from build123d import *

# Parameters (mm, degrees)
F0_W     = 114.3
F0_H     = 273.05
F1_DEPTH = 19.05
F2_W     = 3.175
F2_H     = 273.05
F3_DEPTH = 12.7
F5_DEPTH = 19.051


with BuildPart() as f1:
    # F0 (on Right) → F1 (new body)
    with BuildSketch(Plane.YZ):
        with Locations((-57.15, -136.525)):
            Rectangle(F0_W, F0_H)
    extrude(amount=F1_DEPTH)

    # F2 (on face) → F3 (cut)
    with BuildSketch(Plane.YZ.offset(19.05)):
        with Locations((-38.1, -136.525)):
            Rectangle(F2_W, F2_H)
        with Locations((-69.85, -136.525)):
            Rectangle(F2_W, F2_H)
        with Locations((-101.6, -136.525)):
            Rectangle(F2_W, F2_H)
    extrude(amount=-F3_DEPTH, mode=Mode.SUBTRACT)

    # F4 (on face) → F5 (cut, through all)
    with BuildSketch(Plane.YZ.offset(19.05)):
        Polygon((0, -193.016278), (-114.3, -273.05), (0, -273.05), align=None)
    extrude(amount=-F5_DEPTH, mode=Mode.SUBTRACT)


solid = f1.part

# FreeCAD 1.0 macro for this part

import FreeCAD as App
import Part
import Sketcher
from FreeCAD import Vector
Q = App.Units.Quantity


def add_polygon(sketch, points):
    """Adds a closed chain of lines whose ends are joined by coincident constraints."""
    first, n = sketch.GeometryCount, len(points)
    for a, b in zip(points, points[1:] + points[:1]):
        sketch.addGeometry(Part.LineSegment(App.Vector(*a, 0), App.Vector(*b, 0)), False)
    for i in range(n):
        sketch.addConstraint(Sketcher.Constraint("Coincident", first + i, 2, first + (i + 1) % n, 1))

doc = App.newDocument("Part")
body = doc.addObject("PartDesign::Body", "Body")

# Sketch on YZ plane
sketch1 = doc.addObject("Sketcher::SketchObject", "Sketch")
body.addObject(sketch1)
sketch1.AttachmentSupport = (doc.YZ_Plane, [""])
sketch1.MapMode = "FlatFace"
add_polygon(sketch1, [(-114.3, 0), (-114.3, -273.05), (0, -273.05), (0, 0)])  # lines 0-3
sketch1.addConstraint([
    Sketcher.Constraint("Vertical", 0),
    Sketcher.Constraint("Horizontal", 1),
    Sketcher.Constraint("Vertical", 2),
    Sketcher.Constraint("Horizontal", 3),
    Sketcher.Constraint("Coincident", 2, 2, -1, 1),
    Sketcher.Constraint("DistanceX", 1, 1, 1, 2, Q("4.5 in")),
    Sketcher.Constraint("DistanceY", 0, 2, 0, 1, Q("10.75 in")),
])
pad1 = doc.addObject("PartDesign::Pad", "Pad")
body.addObject(pad1)
pad1.Profile = sketch1
pad1.Length = Q("0.75 in")

# Sketch on YZ plane
sketch2 = doc.addObject("Sketcher::SketchObject", "Sketch001")
body.addObject(sketch2)
sketch2.AttachmentSupport = (doc.YZ_Plane, [""])
sketch2.MapMode = "FlatFace"
sketch2.AttachmentOffset = App.Placement(Vector(0, 0, 0.75 * 25.4), App.Rotation())
add_polygon(sketch2, [(-39.6875, 0), (-39.6875, -273.05), (-36.5125, -273.05), (-36.5125, 0)])  # lines 0-3
add_polygon(sketch2, [(-71.4375, 0), (-71.4375, -273.05), (-68.2625, -273.05), (-68.2625, 0)])  # lines 4-7
add_polygon(sketch2, [(-103.1875, 0), (-103.1875, -273.05), (-100.0125, -273.05), (-100.0125, 0)])  # lines 8-11
sketch2.addConstraint([
    Sketcher.Constraint("Vertical", 0),
    Sketcher.Constraint("Horizontal", 1),
    Sketcher.Constraint("Vertical", 2),
    Sketcher.Constraint("Horizontal", 3),
    Sketcher.Constraint("Vertical", 4),
    Sketcher.Constraint("Horizontal", 5),
    Sketcher.Constraint("Vertical", 6),
    Sketcher.Constraint("Horizontal", 7),
    Sketcher.Constraint("Vertical", 8),
    Sketcher.Constraint("Horizontal", 9),
    Sketcher.Constraint("Vertical", 10),
    Sketcher.Constraint("Horizontal", 11),
    Sketcher.Constraint("PointOnObject", 2, 2, -1),
    Sketcher.Constraint("PointOnObject", 6, 2, -1),
    Sketcher.Constraint("PointOnObject", 10, 2, -1),
    Sketcher.Constraint("Horizontal", 1, 2, 4, 2),
    Sketcher.Constraint("Horizontal", 5, 2, 8, 2),
    Sketcher.Constraint("Equal", 3, 5),
    Sketcher.Constraint("Equal", 7, 9),
    Sketcher.Constraint("DistanceY", 0, 2, 0, 1, Q("10.75 in")),
    Sketcher.Constraint("DistanceX", 8, 2, 0, 2, Q("2.5 in")),
    Sketcher.Constraint("DistanceX", 1, 1, 1, 2, Q("0.125 in")),
    Sketcher.Constraint("DistanceX", 4, 2, 0, 2, Q("1.25 in")),
    Sketcher.Constraint("DistanceX", 0, 2, -1, 1, Q("1.5625 in")),
])
pocket1 = doc.addObject("PartDesign::Pocket", "Pocket")
body.addObject(pocket1)
pocket1.Profile = sketch2
pocket1.Length = Q("0.5 in")

# Sketch on YZ plane
sketch3 = doc.addObject("Sketcher::SketchObject", "Sketch002")
body.addObject(sketch3)
sketch3.AttachmentSupport = (doc.YZ_Plane, [""])
sketch3.MapMode = "FlatFace"
sketch3.AttachmentOffset = App.Placement(Vector(0, 0, 0.75 * 25.4), App.Rotation())
add_polygon(sketch3, [(0, -193.016278), (-114.3, -273.05), (0, -273.05)])  # lines 0-2
sketch3.addConstraint([
    Sketcher.Constraint("Horizontal", 1),
    Sketcher.Constraint("Vertical", 2),
    Sketcher.Constraint("PointOnObject", 1, 2, -2),
    Sketcher.Constraint("DistanceX", 1, 1, 1, 2, Q("4.5 in")),
    Sketcher.Constraint("Angle", 0, Q("-145 deg")),
    Sketcher.Constraint("DistanceY", 0, 2, -1, 1, Q("10.75 in")),
])
pocket2 = doc.addObject("PartDesign::Pocket", "Pocket001")
body.addObject(pocket2)
pocket2.Profile = sketch3
pocket2.Type = "ThroughAll"

doc.recompute()
